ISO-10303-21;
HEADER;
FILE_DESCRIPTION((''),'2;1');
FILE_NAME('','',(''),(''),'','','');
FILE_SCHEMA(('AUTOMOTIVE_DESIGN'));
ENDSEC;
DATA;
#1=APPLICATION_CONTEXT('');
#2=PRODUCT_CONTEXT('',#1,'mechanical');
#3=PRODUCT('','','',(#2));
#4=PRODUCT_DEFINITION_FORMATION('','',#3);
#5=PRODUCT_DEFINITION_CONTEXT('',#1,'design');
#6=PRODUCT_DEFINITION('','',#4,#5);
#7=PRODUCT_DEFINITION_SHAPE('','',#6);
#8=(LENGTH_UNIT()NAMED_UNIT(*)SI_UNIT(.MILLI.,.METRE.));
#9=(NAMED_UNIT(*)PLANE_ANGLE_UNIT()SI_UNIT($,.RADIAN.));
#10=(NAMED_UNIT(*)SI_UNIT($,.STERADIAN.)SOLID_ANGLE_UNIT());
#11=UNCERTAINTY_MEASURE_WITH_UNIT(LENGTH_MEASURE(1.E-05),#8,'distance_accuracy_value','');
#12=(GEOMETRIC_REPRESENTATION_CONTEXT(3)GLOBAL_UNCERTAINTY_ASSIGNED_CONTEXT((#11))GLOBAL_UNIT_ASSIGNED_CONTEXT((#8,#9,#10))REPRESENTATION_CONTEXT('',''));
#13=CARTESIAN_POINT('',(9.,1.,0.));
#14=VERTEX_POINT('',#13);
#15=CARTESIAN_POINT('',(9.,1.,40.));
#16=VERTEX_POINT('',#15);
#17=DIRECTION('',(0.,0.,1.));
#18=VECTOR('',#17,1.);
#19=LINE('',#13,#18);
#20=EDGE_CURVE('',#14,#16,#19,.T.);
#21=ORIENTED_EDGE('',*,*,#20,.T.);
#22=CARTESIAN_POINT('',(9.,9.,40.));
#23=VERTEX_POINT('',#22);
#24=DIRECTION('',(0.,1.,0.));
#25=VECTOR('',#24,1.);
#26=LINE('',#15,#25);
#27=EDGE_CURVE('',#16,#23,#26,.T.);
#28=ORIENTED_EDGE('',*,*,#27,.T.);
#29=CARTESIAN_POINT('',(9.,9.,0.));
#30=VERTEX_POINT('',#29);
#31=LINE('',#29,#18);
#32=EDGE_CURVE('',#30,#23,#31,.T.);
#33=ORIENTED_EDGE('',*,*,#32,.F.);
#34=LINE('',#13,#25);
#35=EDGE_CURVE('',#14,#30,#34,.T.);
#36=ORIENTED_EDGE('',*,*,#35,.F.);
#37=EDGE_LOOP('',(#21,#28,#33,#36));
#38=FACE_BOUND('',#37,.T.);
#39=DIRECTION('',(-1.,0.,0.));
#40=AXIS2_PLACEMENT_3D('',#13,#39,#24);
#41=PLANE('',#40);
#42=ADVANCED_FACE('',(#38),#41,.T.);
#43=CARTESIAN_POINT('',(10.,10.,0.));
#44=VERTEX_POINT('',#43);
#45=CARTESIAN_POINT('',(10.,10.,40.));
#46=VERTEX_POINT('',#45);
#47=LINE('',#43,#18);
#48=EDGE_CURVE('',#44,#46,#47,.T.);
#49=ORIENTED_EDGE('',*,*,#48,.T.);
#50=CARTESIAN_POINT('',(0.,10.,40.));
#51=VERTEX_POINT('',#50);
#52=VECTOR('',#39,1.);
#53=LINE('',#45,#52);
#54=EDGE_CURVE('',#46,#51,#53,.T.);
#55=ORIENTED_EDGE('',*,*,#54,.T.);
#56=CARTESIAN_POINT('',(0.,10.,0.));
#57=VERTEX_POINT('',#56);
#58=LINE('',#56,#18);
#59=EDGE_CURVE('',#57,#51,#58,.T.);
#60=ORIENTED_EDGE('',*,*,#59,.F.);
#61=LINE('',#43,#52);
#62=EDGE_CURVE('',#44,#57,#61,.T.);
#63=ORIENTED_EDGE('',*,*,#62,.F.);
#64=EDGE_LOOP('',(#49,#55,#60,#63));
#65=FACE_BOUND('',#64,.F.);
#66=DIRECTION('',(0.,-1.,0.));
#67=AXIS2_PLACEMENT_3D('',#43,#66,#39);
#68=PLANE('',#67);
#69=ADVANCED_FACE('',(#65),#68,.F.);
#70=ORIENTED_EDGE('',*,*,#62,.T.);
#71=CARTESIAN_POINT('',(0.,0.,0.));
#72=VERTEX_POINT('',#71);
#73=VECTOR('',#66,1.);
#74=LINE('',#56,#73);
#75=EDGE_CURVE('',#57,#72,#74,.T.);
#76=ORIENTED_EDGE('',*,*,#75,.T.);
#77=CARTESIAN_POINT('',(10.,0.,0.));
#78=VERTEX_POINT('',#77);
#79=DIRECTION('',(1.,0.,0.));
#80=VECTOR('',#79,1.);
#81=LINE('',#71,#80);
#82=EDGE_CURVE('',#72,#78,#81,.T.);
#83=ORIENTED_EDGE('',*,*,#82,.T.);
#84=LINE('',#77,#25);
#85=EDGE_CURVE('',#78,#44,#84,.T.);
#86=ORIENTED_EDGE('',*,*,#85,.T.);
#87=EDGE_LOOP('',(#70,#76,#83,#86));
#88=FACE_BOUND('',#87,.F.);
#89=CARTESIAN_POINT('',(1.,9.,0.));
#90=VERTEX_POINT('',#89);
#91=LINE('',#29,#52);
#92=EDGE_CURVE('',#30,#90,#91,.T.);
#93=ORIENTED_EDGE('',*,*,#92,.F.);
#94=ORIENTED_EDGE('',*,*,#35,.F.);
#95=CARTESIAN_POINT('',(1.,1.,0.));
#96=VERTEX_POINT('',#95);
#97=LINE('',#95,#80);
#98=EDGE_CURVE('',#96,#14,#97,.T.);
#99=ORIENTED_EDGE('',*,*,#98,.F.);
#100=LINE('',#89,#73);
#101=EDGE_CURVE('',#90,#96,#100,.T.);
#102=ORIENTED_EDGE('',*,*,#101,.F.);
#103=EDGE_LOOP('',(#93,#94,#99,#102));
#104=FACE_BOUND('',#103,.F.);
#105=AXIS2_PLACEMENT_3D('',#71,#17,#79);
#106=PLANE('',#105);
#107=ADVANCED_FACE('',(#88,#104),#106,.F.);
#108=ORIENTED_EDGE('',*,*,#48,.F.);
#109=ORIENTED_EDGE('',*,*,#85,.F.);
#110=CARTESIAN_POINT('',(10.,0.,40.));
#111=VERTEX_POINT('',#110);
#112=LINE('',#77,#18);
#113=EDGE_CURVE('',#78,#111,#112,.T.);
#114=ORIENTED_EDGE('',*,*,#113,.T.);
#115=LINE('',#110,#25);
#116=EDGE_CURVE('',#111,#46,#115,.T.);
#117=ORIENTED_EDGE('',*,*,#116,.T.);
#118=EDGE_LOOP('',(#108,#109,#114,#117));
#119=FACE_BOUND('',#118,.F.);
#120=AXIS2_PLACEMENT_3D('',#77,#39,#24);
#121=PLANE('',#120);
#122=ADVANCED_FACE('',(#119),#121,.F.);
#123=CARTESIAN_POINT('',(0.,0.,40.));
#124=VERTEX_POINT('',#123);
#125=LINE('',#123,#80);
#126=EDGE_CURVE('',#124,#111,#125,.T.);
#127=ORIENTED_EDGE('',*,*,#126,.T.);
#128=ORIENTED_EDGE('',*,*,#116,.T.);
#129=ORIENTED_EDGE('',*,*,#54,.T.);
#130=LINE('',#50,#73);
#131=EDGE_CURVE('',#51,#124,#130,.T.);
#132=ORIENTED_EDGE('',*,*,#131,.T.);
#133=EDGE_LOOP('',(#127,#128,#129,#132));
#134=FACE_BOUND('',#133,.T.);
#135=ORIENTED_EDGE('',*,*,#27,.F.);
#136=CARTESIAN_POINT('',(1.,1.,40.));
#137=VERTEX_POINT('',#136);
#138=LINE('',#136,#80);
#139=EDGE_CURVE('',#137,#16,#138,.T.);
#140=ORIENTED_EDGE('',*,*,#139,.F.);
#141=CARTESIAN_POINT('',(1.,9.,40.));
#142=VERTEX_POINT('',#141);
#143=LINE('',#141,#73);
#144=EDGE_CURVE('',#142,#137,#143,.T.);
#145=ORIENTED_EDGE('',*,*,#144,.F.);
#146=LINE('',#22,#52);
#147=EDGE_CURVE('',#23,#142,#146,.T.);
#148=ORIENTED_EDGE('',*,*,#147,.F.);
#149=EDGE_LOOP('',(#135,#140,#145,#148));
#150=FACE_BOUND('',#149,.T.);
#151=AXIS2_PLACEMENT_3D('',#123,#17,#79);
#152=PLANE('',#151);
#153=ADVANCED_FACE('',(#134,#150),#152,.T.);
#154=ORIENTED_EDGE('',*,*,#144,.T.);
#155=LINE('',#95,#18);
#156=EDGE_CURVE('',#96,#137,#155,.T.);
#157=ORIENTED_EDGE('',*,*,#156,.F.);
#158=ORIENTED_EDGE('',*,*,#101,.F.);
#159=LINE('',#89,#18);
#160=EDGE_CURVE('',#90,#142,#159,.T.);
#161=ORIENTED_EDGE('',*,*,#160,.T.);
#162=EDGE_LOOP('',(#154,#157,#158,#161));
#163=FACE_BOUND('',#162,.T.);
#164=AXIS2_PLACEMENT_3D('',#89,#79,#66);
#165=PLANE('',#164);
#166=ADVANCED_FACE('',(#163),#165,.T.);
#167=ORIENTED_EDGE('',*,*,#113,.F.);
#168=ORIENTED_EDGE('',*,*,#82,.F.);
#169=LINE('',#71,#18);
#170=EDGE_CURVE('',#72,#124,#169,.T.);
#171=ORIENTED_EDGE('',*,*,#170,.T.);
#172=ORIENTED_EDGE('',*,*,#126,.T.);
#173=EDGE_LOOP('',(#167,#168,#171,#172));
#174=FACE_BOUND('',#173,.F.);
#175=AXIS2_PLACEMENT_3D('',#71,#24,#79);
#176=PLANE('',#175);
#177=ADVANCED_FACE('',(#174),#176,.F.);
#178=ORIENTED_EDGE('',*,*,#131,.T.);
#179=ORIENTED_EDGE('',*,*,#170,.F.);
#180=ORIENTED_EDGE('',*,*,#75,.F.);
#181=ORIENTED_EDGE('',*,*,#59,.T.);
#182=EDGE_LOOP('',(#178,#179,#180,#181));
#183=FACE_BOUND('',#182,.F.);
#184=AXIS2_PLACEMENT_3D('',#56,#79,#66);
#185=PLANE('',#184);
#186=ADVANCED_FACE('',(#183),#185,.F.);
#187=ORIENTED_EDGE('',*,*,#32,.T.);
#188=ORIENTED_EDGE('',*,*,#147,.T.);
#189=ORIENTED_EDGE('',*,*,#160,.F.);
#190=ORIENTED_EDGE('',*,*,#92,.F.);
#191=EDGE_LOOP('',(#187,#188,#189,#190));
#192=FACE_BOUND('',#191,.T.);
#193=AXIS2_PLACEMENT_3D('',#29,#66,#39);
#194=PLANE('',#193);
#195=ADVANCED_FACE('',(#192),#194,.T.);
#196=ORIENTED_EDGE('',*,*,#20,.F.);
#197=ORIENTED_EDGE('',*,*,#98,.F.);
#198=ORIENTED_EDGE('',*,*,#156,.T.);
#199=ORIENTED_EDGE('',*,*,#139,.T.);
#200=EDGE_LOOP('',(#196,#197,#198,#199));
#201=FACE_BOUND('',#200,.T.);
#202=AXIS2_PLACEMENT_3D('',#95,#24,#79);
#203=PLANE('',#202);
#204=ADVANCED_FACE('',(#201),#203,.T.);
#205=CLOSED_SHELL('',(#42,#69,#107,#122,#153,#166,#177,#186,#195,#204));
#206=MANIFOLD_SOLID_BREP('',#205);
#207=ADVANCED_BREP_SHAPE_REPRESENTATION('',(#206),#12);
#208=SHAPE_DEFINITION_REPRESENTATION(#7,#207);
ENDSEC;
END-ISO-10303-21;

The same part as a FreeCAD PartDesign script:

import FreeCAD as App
import Part
import Sketcher

V = App.Vector


def add_polygon(sketch, points):
    """Adds a closed chain of lines whose ends are joined by coincident constraints."""
    first, n = sketch.GeometryCount, len(points)
    for a, b in zip(points, points[1:] + points[:1]):
        sketch.addGeometry(Part.LineSegment(App.Vector(*a, 0), App.Vector(*b, 0)), False)
    for i in range(n):
        sketch.addConstraint(Sketcher.Constraint("Coincident", first + i, 2, first + (i + 1) % n, 1))

doc = App.newDocument("Part")
body = doc.addObject("PartDesign::Body", "Body")

sketch1 = body.newObject("Sketcher::SketchObject", "Sketch")
sketch1.AttachmentSupport = (doc.getObject("XY_Plane"), [""])
sketch1.MapMode = "FlatFace"
add_polygon(sketch1, [(0, 10), (0, 0), (10, 0), (10, 10)])
add_polygon(sketch1, [(9, 1), (1, 1), (1, 9), (9, 9)])
sketch1.addConstraint(Sketcher.Constraint("Vertical", 0))
sketch1.addConstraint(Sketcher.Constraint("Horizontal", 1))
sketch1.addConstraint(Sketcher.Constraint("Vertical", 2))
sketch1.addConstraint(Sketcher.Constraint("Horizontal", 3))
sketch1.addConstraint(Sketcher.Constraint("Horizontal", 4))
sketch1.addConstraint(Sketcher.Constraint("Vertical", 5))
sketch1.addConstraint(Sketcher.Constraint("Horizontal", 6))
sketch1.addConstraint(Sketcher.Constraint("Vertical", 7))
sketch1.addConstraint(Sketcher.Constraint("Coincident", 0, 2, -1, 1))
sketch1.addConstraint(Sketcher.Constraint("Equal", 3, 0))
sketch1.addConstraint(Sketcher.Constraint("Equal", 6, 5))
sketch1.addConstraint(Sketcher.Constraint("DistanceX", 1, 1, 1, 2, 10.0))
sketch1.addConstraint(Sketcher.Constraint("DistanceX", 4, 2, 4, 1, 8.0))
sketch1.addConstraint(Sketcher.Constraint("DistanceX", -1, 1, 4, 2, 1.0))
sketch1.addConstraint(Sketcher.Constraint("DistanceY", -1, 1, 4, 2, 1.0))
pad1 = body.newObject("PartDesign::Pad", "Pad")
pad1.Profile = sketch1
pad1.Length = 40

doc.recompute()
